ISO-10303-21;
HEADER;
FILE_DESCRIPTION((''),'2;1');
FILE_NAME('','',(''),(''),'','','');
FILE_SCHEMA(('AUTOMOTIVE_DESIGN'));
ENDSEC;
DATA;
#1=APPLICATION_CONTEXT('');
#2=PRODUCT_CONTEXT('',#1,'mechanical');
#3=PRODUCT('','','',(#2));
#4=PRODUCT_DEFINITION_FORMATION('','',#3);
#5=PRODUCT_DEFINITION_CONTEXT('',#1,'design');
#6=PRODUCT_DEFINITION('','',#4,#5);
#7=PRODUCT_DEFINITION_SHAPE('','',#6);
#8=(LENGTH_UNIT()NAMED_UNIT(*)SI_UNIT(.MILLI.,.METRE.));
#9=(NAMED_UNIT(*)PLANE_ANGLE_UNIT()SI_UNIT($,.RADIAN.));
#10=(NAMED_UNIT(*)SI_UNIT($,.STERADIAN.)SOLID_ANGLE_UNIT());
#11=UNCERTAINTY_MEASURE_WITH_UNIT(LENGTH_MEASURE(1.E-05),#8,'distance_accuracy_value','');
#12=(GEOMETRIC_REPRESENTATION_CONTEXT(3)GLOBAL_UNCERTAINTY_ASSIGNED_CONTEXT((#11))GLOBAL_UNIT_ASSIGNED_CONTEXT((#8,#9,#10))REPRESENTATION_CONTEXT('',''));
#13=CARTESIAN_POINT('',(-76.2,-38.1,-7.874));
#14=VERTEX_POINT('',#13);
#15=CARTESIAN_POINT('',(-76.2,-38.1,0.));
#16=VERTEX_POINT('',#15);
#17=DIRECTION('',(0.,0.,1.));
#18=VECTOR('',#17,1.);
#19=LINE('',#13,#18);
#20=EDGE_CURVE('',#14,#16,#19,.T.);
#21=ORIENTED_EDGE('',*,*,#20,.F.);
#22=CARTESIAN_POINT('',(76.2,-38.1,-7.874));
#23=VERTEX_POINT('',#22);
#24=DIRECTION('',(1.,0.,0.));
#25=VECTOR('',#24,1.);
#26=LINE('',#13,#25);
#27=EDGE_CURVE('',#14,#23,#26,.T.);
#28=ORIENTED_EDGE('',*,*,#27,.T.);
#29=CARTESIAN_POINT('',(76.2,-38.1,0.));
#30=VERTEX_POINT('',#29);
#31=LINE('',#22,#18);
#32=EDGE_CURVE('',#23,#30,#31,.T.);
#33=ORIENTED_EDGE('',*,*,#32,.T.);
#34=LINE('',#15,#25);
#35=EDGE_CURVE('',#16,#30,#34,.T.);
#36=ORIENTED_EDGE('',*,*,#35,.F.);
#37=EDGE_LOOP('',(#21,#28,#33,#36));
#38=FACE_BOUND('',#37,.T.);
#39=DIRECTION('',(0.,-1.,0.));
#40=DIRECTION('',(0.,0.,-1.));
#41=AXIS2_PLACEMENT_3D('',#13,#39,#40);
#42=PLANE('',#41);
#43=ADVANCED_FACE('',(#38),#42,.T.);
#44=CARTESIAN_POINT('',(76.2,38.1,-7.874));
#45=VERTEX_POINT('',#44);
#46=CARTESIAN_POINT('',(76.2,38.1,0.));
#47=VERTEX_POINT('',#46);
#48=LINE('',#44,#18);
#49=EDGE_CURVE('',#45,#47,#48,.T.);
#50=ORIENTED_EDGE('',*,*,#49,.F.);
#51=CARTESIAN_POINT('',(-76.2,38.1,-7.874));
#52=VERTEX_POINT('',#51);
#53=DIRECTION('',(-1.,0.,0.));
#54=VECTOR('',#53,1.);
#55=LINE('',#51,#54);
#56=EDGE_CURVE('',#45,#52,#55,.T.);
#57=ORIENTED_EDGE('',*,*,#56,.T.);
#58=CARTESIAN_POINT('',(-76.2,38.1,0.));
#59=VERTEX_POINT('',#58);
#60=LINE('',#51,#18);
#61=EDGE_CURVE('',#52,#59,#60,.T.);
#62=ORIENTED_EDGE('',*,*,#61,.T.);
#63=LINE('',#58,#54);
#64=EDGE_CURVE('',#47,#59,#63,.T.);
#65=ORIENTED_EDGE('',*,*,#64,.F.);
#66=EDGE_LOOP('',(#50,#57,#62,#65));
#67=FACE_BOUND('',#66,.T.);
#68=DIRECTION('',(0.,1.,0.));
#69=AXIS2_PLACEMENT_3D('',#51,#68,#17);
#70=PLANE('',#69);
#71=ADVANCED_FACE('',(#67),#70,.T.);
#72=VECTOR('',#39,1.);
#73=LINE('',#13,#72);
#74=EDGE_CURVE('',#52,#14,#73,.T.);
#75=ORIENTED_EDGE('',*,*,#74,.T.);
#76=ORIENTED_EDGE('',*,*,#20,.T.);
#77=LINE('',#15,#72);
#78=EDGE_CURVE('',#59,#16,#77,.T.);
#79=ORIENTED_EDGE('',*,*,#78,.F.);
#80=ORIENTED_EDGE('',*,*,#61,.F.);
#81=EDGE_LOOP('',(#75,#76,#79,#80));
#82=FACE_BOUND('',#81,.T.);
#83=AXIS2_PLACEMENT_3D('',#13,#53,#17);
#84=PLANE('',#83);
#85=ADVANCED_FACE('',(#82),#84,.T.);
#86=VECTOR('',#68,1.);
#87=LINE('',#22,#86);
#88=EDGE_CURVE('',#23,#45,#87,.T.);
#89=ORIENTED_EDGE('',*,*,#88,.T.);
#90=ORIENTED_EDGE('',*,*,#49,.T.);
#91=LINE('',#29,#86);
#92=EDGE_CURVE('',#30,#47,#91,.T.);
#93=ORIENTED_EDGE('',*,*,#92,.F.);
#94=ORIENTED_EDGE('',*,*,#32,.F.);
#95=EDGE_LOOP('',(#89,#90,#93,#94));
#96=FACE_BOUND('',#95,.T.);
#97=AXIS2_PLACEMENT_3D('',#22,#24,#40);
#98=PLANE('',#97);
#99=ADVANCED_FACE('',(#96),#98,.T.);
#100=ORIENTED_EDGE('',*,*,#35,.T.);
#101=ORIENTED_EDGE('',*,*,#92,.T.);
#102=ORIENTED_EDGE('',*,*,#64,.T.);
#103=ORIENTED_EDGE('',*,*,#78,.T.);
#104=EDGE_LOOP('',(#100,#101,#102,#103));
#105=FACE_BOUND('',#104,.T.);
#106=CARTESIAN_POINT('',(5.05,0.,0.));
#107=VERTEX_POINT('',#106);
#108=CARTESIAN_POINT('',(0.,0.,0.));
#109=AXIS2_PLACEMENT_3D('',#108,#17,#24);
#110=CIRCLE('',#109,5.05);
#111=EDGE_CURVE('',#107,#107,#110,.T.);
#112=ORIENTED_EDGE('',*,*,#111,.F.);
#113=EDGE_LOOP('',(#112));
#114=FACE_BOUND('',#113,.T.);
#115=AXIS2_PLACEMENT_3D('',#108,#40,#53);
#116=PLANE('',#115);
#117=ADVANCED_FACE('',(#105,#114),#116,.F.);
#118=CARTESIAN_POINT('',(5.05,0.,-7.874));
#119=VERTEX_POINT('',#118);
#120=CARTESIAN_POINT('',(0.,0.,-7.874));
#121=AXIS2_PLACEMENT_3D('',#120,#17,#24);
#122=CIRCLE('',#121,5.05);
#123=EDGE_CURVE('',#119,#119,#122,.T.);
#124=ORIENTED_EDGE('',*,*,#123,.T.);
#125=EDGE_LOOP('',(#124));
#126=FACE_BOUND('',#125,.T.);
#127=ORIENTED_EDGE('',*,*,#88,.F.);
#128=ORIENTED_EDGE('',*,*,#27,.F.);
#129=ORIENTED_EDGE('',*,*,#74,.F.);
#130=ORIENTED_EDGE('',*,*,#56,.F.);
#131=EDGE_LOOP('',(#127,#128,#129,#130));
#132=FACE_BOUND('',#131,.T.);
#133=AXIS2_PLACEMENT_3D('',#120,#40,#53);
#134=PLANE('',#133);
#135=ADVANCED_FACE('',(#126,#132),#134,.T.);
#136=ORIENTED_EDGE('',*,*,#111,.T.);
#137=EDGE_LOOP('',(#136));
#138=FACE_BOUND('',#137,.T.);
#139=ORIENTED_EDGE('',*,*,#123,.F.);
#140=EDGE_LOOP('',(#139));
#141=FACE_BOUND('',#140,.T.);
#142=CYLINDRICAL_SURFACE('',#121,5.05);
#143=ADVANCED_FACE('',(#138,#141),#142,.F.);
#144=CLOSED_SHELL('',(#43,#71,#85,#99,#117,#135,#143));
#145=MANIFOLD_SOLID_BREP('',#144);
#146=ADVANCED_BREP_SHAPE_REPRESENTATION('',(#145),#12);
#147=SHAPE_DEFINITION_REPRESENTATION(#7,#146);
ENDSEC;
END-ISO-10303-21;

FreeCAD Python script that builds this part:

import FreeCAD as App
import Part
import Sketcher
from FreeCAD import Vector
Q = App.Units.Quantity

doc = App.newDocument("Part")
params = doc.addObject("Spreadsheet::Sheet", "Params")
for row, (alias, value) in enumerate([
    ("sketch1_width", "6 in"),
    ("sketch1_height", "3 in"),
    ("pad1_length", "0.31 in"),
    ("pocket1_length", "0.31 in"),
], start=1):
    params.set(f"A{row}", alias)
    params.set(f"B{row}", "=" + value)
    params.setAlias(f"B{row}", alias)

body = doc.addObject("PartDesign::Body", "Body")

# Sketch on XY plane
sketch1 = doc.addObject("Sketcher::SketchObject", "Sketch")
body.addObject(sketch1)
sketch1.AttachmentSupport = (doc.XY_Plane, [""])
sketch1.MapMode = "FlatFace"
sketch1.addGeometry([
    Part.LineSegment(Vector(-76, 38, 0), Vector(-76, -38, 0)),
    Part.LineSegment(Vector(-76, -38, 0), Vector(76, -38, 0)),
    Part.LineSegment(Vector(76, -38, 0), Vector(76, 38, 0)),
    Part.LineSegment(Vector(76, 38, 0), Vector(-76, 38, 0)),
], False)
sketch1.addConstraint([
    Sketcher.Constraint("Coincident", 0, 2, 1, 1),
    Sketcher.Constraint("Coincident", 1, 2, 2, 1),
    Sketcher.Constraint("Coincident", 2, 2, 3, 1),
    Sketcher.Constraint("Coincident", 3, 2, 0, 1),
    Sketcher.Constraint("Vertical", 0),
    Sketcher.Constraint("Horizontal", 1),
    Sketcher.Constraint("Vertical", 2),
    Sketcher.Constraint("Horizontal", 3),
    Sketcher.Constraint("Symmetric", 0, 2, 2, 2, -1, 1),
    Sketcher.Constraint("DistanceX", 1, 1, 1, 2, Q("6 in")),
    Sketcher.Constraint("DistanceY", 0, 2, 0, 1, Q("3 in")),
])
sketch1.setExpression("Constraints[9]", "Params.sketch1_width")
sketch1.setExpression("Constraints[10]", "Params.sketch1_height")
pad1 = doc.addObject("PartDesign::Pad", "Pad")
body.addObject(pad1)
pad1.Profile = sketch1
pad1.setExpression("Length", "Params.pad1_length")
pad1.Reversed = True

# Sketch on XY plane
sketch2 = doc.addObject("Sketcher::SketchObject", "Sketch001")
body.addObject(sketch2)
sketch2.AttachmentSupport = (doc.XY_Plane, [""])
sketch2.MapMode = "FlatFace"
sketch2.addGeometry(Part.Circle(Vector(0, 0, 0), Vector(0, 0, 1), 5), False)
sketch2.addConstraint([
    Sketcher.Constraint("Coincident", 0, 3, -1, 1),
    Sketcher.Constraint("Diameter", 0, 10.1),
])
pocket1 = doc.addObject("PartDesign::Pocket", "Pocket")
body.addObject(pocket1)
pocket1.Profile = sketch2
pocket1.setExpression("Length", "Params.pocket1_length")

doc.recompute()
